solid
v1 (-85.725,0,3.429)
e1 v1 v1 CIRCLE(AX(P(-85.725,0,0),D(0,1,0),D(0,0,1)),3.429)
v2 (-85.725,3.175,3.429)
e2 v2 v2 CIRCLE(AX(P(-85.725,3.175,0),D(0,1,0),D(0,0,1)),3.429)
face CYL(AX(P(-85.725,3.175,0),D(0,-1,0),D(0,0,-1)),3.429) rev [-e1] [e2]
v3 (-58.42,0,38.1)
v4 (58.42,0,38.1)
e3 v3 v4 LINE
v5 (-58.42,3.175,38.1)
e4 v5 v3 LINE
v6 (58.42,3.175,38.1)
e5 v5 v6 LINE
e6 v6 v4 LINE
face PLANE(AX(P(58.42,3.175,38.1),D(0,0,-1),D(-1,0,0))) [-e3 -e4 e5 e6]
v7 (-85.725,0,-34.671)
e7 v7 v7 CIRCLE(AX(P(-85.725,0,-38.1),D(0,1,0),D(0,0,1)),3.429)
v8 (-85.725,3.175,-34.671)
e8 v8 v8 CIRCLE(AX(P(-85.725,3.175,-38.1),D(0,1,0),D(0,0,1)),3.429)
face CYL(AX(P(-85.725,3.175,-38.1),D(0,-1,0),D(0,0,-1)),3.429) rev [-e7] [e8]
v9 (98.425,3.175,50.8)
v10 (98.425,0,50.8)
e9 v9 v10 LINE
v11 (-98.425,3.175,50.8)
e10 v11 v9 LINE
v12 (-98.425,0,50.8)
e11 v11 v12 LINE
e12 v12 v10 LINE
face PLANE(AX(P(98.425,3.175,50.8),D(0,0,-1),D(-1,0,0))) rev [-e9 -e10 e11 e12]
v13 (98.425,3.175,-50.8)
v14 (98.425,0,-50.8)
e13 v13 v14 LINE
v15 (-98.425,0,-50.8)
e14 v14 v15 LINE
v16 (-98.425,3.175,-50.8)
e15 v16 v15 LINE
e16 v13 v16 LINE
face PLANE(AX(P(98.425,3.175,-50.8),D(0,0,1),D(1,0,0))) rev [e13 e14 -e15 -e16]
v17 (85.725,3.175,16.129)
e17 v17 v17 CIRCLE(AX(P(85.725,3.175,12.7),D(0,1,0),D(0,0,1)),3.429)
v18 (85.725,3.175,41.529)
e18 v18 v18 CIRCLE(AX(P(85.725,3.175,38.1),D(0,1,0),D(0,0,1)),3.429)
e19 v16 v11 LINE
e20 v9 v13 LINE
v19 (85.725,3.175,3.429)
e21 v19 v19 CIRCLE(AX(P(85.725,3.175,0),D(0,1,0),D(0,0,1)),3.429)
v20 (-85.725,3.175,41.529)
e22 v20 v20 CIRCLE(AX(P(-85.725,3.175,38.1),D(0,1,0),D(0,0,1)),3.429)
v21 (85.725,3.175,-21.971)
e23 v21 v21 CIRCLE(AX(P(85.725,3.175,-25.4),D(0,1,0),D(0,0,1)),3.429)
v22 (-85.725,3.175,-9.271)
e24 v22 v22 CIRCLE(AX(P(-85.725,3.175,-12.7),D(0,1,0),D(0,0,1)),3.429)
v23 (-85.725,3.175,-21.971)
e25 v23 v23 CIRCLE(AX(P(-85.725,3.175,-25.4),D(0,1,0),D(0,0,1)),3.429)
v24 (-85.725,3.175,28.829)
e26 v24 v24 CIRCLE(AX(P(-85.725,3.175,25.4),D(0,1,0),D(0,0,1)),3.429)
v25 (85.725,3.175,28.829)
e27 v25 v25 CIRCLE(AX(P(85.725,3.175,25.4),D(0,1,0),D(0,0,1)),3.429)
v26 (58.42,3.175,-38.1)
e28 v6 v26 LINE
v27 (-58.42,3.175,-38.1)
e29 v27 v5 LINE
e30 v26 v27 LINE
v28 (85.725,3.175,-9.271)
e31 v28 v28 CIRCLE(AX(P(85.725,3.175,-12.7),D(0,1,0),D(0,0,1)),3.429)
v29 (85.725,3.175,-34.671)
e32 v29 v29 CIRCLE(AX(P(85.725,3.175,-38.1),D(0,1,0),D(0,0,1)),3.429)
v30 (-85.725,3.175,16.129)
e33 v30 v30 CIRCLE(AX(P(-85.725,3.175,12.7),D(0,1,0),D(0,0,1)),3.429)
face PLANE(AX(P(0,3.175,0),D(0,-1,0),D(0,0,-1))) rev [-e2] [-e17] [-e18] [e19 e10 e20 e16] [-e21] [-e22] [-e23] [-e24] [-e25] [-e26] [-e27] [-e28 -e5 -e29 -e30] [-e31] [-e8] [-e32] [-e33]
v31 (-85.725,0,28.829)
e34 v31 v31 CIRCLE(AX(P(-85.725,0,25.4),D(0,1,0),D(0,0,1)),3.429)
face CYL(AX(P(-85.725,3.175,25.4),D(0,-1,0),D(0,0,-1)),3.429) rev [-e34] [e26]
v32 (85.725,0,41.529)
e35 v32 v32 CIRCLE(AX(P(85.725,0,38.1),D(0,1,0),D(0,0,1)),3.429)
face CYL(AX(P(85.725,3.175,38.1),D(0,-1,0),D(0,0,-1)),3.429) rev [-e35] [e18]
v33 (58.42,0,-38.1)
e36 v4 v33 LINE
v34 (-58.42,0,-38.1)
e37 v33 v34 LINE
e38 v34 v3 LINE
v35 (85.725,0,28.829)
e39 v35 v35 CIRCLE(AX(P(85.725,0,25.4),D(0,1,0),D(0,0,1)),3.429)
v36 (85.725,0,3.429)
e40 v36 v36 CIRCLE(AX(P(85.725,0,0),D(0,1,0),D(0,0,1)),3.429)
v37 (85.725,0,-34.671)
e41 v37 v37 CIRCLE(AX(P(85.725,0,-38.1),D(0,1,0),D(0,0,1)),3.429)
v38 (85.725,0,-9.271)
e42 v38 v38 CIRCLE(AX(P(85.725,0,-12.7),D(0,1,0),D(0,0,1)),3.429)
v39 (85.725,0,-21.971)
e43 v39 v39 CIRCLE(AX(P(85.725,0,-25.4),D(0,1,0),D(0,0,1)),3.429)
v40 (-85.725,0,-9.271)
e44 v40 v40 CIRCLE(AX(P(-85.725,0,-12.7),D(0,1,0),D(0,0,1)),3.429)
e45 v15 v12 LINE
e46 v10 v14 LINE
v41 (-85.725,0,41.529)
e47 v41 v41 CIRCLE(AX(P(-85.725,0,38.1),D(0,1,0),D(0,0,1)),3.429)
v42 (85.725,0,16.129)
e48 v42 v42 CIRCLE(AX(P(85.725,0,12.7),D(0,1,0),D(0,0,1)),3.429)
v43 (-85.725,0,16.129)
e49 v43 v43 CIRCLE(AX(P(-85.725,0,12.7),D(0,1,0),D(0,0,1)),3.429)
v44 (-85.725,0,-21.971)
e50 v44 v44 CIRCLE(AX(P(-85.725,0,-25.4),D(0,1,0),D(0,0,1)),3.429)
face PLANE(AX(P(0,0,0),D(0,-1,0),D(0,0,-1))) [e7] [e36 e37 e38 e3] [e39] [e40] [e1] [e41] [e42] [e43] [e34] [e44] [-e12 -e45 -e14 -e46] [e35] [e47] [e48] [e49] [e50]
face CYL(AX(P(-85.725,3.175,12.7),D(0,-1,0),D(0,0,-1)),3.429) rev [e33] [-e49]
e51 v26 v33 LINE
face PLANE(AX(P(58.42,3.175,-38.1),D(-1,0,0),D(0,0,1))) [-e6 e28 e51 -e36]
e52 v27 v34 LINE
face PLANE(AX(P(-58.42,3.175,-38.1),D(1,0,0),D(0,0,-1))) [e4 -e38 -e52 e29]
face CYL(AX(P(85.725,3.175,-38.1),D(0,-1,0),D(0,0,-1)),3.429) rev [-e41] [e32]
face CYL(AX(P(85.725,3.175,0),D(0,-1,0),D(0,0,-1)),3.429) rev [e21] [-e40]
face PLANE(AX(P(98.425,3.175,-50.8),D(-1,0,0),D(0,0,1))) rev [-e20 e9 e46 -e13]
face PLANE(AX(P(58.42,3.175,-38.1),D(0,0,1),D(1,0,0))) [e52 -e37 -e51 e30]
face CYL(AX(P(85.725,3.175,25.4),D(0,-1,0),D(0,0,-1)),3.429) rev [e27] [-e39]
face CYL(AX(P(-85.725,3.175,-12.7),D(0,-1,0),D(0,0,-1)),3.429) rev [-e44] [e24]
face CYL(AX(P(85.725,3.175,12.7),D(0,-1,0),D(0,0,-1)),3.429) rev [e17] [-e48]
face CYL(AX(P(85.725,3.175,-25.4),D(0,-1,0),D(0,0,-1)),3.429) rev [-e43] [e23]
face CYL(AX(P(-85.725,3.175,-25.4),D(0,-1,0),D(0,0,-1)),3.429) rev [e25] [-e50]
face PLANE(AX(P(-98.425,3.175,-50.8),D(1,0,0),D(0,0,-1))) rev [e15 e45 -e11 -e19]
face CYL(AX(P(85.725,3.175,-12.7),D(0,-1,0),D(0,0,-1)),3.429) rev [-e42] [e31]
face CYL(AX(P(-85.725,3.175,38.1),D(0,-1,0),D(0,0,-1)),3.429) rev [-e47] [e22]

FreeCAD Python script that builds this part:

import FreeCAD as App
import Part
import Sketcher
Q = App.Units.Quantity


def add_polygon(sketch, points):
    """Adds a closed chain of lines whose ends are joined by coincident constraints."""
    first, n = sketch.GeometryCount, len(points)
    for a, b in zip(points, points[1:] + points[:1]):
        sketch.addGeometry(Part.LineSegment(App.Vector(*a, 0), App.Vector(*b, 0)), False)
    for i in range(n):
        sketch.addConstraint(Sketcher.Constraint("Coincident", first + i, 2, first + (i + 1) % n, 1))

doc = App.newDocument("Part")
body = doc.addObject("PartDesign::Body", "Body")

# Sketch on XZ plane
sketch1 = doc.addObject("Sketcher::SketchObject", "Sketch")
body.addObject(sketch1)
sketch1.AttachmentSupport = (doc.XZ_Plane, [""])
sketch1.MapMode = "FlatFace"
add_polygon(sketch1, [(-98.425, -50.8), (-98.425, 50.8), (98.425, 50.8), (98.425, -50.8)])  # lines 0-3
sketch1.addGeometry(Part.Circle(App.Vector(-85.725, 38.1, 0), App.Vector(0, 0, 1), 3.429), False)  # 4
sketch1.addGeometry(Part.Circle(App.Vector(-85.725, 25.4, 0), App.Vector(0, 0, 1), 3.429), False)  # 5
sketch1.addGeometry(Part.Circle(App.Vector(-85.725, 12.7, 0), App.Vector(0, 0, 1), 3.429), False)  # 6
sketch1.addGeometry(Part.Circle(App.Vector(-85.725, 0, 0), App.Vector(0, 0, 1), 3.429), False)  # 7
sketch1.addGeometry(Part.Circle(App.Vector(85.725, 38.1, 0), App.Vector(0, 0, 1), 3.429), False)  # 8
sketch1.addGeometry(Part.Circle(App.Vector(85.725, 25.4, 0), App.Vector(0, 0, 1), 3.429), False)  # 9
add_polygon(sketch1, [(58.42, 38.1), (-58.42, 38.1), (-58.42, -38.1), (58.42, -38.1)])  # lines 10-13
sketch1.addGeometry(Part.Circle(App.Vector(85.725, 12.7, 0), App.Vector(0, 0, 1), 3.429), False)  # 14
sketch1.addGeometry(Part.Circle(App.Vector(85.725, 0, 0), App.Vector(0, 0, 1), 3.429), False)  # 15
sketch1.addGeometry(Part.Circle(App.Vector(-85.725, -12.7, 0), App.Vector(0, 0, 1), 3.429), False)  # 16
sketch1.addGeometry(Part.Circle(App.Vector(-85.725, -25.4, 0), App.Vector(0, 0, 1), 3.429), False)  # 17
sketch1.addGeometry(Part.Circle(App.Vector(-85.725, -38.1, 0), App.Vector(0, 0, 1), 3.429), False)  # 18
sketch1.addGeometry(Part.Circle(App.Vector(85.725, -12.7, 0), App.Vector(0, 0, 1), 3.429), False)  # 19
sketch1.addGeometry(Part.Circle(App.Vector(85.725, -25.4, 0), App.Vector(0, 0, 1), 3.429), False)  # 20
sketch1.addGeometry(Part.Circle(App.Vector(85.725, -38.1, 0), App.Vector(0, 0, 1), 3.429), False)  # 21
sketch1.addConstraint([
    Sketcher.Constraint("Vertical", 0),
    Sketcher.Constraint("Horizontal", 1),
    Sketcher.Constraint("Vertical", 2),
    Sketcher.Constraint("Horizontal", 3),
    Sketcher.Constraint("Horizontal", 10),
    Sketcher.Constraint("Vertical", 11),
    Sketcher.Constraint("Horizontal", 12),
    Sketcher.Constraint("Vertical", 13),
    Sketcher.Constraint("Equal", 4, 5),
    Sketcher.Constraint("Equal", 5, 6),
    Sketcher.Constraint("Equal", 6, 7),
    Sketcher.Constraint("Equal", 7, 8),
    Sketcher.Constraint("Equal", 8, 9),
    Sketcher.Constraint("Equal", 9, 14),
    Sketcher.Constraint("Equal", 14, 15),
    Sketcher.Constraint("Equal", 15, 16),
    Sketcher.Constraint("Equal", 16, 17),
    Sketcher.Constraint("Equal", 17, 18),
    Sketcher.Constraint("Equal", 18, 19),
    Sketcher.Constraint("Equal", 19, 20),
    Sketcher.Constraint("Equal", 20, 21),
    Sketcher.Constraint("Symmetric", 7, 3, 15, 3, -1, 1),
    Sketcher.Constraint("Symmetric", 14, 3, 16, 3, -1, 1),
    Sketcher.Constraint("Symmetric", 9, 3, 17, 3, -1, 1),
    Sketcher.Constraint("Symmetric", 8, 3, 18, 3, -1, 1),
    Sketcher.Constraint("Symmetric", 6, 3, 19, 3, -1, 1),
    Sketcher.Constraint("Symmetric", 5, 3, 20, 3, -1, 1),
    Sketcher.Constraint("Symmetric", 4, 3, 21, 3, -1, 1),
    Sketcher.Constraint("Symmetric", 0, 2, 2, 2, -1, 1),
    Sketcher.Constraint("Symmetric", 10, 2, 12, 2, -1, 1),
    Sketcher.Constraint("Symmetric", 4, 3, 8, 3, -2),
    Sketcher.Constraint("Symmetric", 5, 3, 9, 3, -2),
    Sketcher.Constraint("Symmetric", 6, 3, 14, 3, -2),
    Sketcher.Constraint("PointOnObject", 7, 3, -1),
    Sketcher.Constraint("Horizontal", 8, 3, 10, 2),
    Sketcher.Constraint("Vertical", 4, 3, 5, 3),
    Sketcher.Constraint("Vertical", 5, 3, 6, 3),
    Sketcher.Constraint("Vertical", 6, 3, 7, 3),
    Sketcher.Constraint("Diameter", 4, Q("0.27 in")),
    Sketcher.Constraint("DistanceY", 0, 1, 0, 2, Q("4 in")),
    Sketcher.Constraint("DistanceY", 11, 2, 11, 1, Q("3 in")),
    Sketcher.Constraint("DistanceX", 10, 2, 10, 1, Q("4.6 in")),
    Sketcher.Constraint("DistanceY", -1, 1, 5, 3, Q("1 in")),
    Sketcher.Constraint("DistanceY", 6, 3, 4, 3, Q("1 in")),
    Sketcher.Constraint("DistanceX", 1, 1, 1, 2, Q("7.75 in")),
    Sketcher.Constraint("DistanceX", 0, 2, 4, 3, Q("0.5 in")),
])
pad1 = doc.addObject("PartDesign::Pad", "Pad")
body.addObject(pad1)
pad1.Profile = sketch1
pad1.Length = Q("0.125 in")
pad1.Reversed = True

doc.recompute()
